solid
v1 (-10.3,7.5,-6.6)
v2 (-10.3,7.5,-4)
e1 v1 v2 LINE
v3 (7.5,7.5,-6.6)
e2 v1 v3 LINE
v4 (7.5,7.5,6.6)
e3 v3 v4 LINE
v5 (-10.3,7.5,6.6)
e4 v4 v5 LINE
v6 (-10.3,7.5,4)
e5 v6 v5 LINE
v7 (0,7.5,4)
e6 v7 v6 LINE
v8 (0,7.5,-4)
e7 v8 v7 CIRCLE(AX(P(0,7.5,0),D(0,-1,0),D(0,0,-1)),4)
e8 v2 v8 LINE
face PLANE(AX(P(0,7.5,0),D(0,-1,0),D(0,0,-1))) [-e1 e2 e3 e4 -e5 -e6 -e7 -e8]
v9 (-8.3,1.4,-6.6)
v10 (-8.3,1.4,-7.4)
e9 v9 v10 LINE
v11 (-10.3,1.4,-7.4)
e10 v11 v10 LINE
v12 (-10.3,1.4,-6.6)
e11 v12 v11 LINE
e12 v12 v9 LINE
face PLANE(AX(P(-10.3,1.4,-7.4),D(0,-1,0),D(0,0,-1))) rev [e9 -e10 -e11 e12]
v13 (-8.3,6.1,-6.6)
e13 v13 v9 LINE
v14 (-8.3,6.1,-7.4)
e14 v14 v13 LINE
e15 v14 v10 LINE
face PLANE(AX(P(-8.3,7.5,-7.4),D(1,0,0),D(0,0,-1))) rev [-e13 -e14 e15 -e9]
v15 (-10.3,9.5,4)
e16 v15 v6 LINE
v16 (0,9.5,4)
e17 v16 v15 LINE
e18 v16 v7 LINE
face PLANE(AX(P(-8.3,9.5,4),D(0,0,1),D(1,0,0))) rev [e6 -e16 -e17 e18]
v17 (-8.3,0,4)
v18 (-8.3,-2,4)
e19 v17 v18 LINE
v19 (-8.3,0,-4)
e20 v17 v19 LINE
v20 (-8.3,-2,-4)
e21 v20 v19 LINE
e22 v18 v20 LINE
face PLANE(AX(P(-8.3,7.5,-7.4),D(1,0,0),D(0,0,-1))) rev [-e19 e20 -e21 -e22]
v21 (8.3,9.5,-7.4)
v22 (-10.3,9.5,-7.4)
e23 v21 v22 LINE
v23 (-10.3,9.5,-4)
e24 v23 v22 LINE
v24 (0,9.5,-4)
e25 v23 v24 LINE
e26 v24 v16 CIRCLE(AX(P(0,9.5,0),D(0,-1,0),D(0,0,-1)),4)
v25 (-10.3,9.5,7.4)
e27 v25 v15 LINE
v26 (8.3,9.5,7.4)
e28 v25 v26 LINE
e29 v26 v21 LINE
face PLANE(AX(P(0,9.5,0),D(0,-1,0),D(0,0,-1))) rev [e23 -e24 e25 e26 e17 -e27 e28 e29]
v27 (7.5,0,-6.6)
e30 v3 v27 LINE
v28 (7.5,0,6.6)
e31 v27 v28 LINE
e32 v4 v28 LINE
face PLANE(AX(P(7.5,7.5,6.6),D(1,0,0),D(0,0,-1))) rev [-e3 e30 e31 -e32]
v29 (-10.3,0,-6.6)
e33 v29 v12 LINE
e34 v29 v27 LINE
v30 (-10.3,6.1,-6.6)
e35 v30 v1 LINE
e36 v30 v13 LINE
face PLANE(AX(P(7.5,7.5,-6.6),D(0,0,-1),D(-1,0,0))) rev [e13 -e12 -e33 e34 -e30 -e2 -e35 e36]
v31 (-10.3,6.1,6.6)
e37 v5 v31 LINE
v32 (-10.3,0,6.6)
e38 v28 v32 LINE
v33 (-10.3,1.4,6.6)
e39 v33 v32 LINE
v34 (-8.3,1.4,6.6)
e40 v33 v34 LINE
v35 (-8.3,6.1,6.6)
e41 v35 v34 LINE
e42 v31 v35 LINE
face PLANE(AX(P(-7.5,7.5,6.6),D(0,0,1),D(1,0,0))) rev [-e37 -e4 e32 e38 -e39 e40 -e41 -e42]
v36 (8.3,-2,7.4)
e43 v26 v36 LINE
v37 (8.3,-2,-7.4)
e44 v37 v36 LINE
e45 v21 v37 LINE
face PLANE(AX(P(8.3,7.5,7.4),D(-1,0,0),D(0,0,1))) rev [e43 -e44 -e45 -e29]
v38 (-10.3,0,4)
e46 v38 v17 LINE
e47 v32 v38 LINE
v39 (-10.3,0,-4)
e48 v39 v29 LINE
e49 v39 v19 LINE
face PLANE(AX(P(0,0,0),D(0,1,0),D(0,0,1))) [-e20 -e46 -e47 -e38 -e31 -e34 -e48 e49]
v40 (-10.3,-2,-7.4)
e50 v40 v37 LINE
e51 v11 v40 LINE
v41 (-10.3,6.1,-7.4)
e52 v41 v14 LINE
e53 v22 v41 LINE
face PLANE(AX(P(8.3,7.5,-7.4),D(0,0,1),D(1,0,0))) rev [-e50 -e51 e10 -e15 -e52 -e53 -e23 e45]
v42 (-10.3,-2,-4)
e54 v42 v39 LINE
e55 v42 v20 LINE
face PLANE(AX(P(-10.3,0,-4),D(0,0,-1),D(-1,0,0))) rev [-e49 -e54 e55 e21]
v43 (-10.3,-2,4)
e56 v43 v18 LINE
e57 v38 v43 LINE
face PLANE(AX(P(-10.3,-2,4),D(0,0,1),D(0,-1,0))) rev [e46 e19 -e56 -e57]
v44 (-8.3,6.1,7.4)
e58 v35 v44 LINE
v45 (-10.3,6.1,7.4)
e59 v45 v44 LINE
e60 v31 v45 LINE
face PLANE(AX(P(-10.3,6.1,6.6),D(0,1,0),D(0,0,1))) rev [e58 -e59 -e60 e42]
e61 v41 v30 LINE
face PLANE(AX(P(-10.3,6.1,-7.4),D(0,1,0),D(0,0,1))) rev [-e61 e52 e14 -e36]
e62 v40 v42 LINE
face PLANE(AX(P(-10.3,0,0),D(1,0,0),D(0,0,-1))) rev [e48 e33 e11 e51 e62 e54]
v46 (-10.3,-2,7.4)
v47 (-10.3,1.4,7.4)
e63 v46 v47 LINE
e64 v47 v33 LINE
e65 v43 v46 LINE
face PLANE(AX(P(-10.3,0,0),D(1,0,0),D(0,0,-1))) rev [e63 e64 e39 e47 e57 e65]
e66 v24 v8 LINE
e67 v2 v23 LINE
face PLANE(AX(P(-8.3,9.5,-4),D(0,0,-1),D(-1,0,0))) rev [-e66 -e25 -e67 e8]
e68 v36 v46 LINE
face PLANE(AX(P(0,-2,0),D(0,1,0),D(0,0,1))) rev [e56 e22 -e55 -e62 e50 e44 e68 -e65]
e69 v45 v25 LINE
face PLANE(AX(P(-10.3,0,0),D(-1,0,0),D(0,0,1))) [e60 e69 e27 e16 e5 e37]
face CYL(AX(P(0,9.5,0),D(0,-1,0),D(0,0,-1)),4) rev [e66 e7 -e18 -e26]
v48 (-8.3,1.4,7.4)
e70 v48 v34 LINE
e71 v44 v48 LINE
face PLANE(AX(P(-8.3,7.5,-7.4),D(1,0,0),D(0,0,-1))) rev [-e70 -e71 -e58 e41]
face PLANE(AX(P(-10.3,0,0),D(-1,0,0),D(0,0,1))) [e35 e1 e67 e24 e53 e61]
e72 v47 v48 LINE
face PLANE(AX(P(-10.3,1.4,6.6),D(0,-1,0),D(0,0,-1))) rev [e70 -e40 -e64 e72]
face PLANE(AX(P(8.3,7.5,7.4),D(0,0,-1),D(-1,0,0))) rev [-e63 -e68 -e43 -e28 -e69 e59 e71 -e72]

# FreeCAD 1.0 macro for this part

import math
import FreeCAD as App
import Part
import Sketcher
from FreeCAD import Vector
Q = App.Units.Quantity


def add_polygon(sketch, points):
    """Adds a closed chain of lines whose ends are joined by coincident constraints."""
    first, n = sketch.GeometryCount, len(points)
    for a, b in zip(points, points[1:] + points[:1]):
        sketch.addGeometry(Part.LineSegment(App.Vector(*a, 0), App.Vector(*b, 0)), False)
    for i in range(n):
        sketch.addConstraint(Sketcher.Constraint("Coincident", first + i, 2, first + (i + 1) % n, 1))

doc = App.newDocument("Part")
body = doc.addObject("PartDesign::Body", "Body")

# Sketch on XZ plane
sketch1 = body.newObject("Sketcher::SketchObject", "Sketch")
sketch1.AttachmentSupport = (doc.getObject("XZ_Plane"), [""])
sketch1.MapMode = "FlatFace"
add_polygon(sketch1, [(8.3, 7.4), (8.3, -7.4), (-8.3, -7.4), (-8.3, -6.6), (7.5, -6.6), (7.5, 6.6), (-8.3, 6.6), (-8.3, 7.4)])  # lines 0-7
sketch1.addConstraint([
    Sketcher.Constraint("Vertical", 0),
    Sketcher.Constraint("Horizontal", 1),
    Sketcher.Constraint("Vertical", 2),
    Sketcher.Constraint("Horizontal", 3),
    Sketcher.Constraint("Vertical", 4),
    Sketcher.Constraint("Horizontal", 5),
    Sketcher.Constraint("Vertical", 6),
    Sketcher.Constraint("Horizontal", 7),
    Sketcher.Constraint("Symmetric", 0, 2, 6, 2, -1, 1),
    Sketcher.Constraint("Symmetric", 2, 2, 5, 2, -1),
    Sketcher.Constraint("DistanceX", 1, 2, 1, 1, Q("16.6 mm")),
    Sketcher.Constraint("DistanceX", 3, 1, 3, 2, Q("15.8 mm")),
    Sketcher.Constraint("DistanceY", 0, 2, 0, 1, Q("14.8 mm")),
    Sketcher.Constraint("DistanceY", 2, 1, 2, 2, Q("0.8 mm")),
])
pad1 = body.newObject("PartDesign::Pad", "Pad")
pad1.Profile = sketch1
pad1.Length = 7.5
pad1.Reversed = True

# Sketch on XZ plane
sketch2 = body.newObject("Sketcher::SketchObject", "Sketch001")
sketch2.AttachmentSupport = (doc.getObject("XZ_Plane"), [""])
sketch2.MapMode = "FlatFace"
add_polygon(sketch2, [(-8, 7), (-8, -7), (8, -7), (8, 7)])  # lines 0-3
sketch2.addConstraint([
    Sketcher.Constraint("Vertical", 0),
    Sketcher.Constraint("Horizontal", 1),
    Sketcher.Constraint("Vertical", 2),
    Sketcher.Constraint("Horizontal", 3),
    Sketcher.Constraint("Symmetric", 0, 2, 2, 2, -1, 1),
    Sketcher.Constraint("DistanceX", 1, 1, 1, 2, Q("16.6 mm")),
    Sketcher.Constraint("DistanceY", 0, 2, 0, 1, Q("14.8 mm")),
])
pad2 = body.newObject("PartDesign::Pad", "Pad001")
pad2.Profile = sketch2
pad2.Length = 2

# Sketch on XZ plane
sketch3 = body.newObject("Sketcher::SketchObject", "Sketch002")
sketch3.AttachmentSupport = (doc.getObject("XZ_Plane"), [""])
sketch3.MapMode = "FlatFace"
sketch3.AttachmentOffset = App.Placement(Vector(0, 0, -7.5), App.Rotation())
sketch3.addGeometry([
    Part.LineSegment(Vector(-8.3, -4, 0), Vector(0, -4, 0)),  # 0
    Part.ArcOfCircle(Part.Circle(Vector(0, 0, 0), Vector(0, 0, 1), 4), math.radians(-90), math.radians(90)),  # 1
    Part.LineSegment(Vector(0, 4, 0), Vector(-8.3, 4, 0)),  # 2
    Part.LineSegment(Vector(-8.3, 4, 0), Vector(-8.3, 7.4, 0)),  # 3
    Part.LineSegment(Vector(-8.3, 7.4, 0), Vector(8.3, 7.4, 0)),  # 4
    Part.LineSegment(Vector(8.3, 7.4, 0), Vector(8.3, -7.4, 0)),  # 5
    Part.LineSegment(Vector(8.3, -7.4, 0), Vector(-8.3, -7.4, 0)),  # 6
    Part.LineSegment(Vector(-8.3, -7.4, 0), Vector(-8.3, -4, 0)),  # 7
], False)
sketch3.addConstraint([
    Sketcher.Constraint("Tangent", 0, 2, 1, 1),
    Sketcher.Constraint("Tangent", 1, 2, 2, 1),
    Sketcher.Constraint("Coincident", 2, 2, 3, 1),
    Sketcher.Constraint("Coincident", 3, 2, 4, 1),
    Sketcher.Constraint("Coincident", 4, 2, 5, 1),
    Sketcher.Constraint("Coincident", 5, 2, 6, 1),
    Sketcher.Constraint("Coincident", 6, 2, 7, 1),
    Sketcher.Constraint("Coincident", 7, 2, 0, 1),
    Sketcher.Constraint("Horizontal", 0),
    Sketcher.Constraint("Horizontal", 2),
    Sketcher.Constraint("Vertical", 3),
    Sketcher.Constraint("Horizontal", 4),
    Sketcher.Constraint("Vertical", 5),
    Sketcher.Constraint("Horizontal", 6),
    Sketcher.Constraint("Vertical", 7),
    Sketcher.Constraint("Coincident", 1, 3, -1, 1),
    Sketcher.Constraint("Symmetric", 3, 2, 5, 2, -1, 1),
    Sketcher.Constraint("Vertical", 3, 2, 6, 2),
    Sketcher.Constraint("Radius", 1, Q("4 mm")),
    Sketcher.Constraint("DistanceX", 0, 1, 0, 2, Q("8.3 mm")),
    Sketcher.Constraint("DistanceY", 3, 1, 3, 2, Q("3.4 mm")),
])
pad3 = body.newObject("PartDesign::Pad", "Pad002")
pad3.Profile = sketch3
pad3.Length = 2
pad3.Reversed = True

# Sketch on YZ plane
sketch4 = body.newObject("Sketcher::SketchObject", "Sketch003")
sketch4.AttachmentSupport = (doc.getObject("YZ_Plane"), [""])
sketch4.MapMode = "FlatFace"
sketch4.AttachmentOffset = App.Placement(Vector(0, 0, -8.3), App.Rotation())
add_polygon(sketch4, [(9.5, -4), (9.5, -7.4), (6.1, -7.4), (6.1, -6.6), (7.5, -6.6), (7.5, -4)])  # lines 0-5
add_polygon(sketch4, [(9.5, 4), (7.5, 4), (7.5, 6.6), (6.1, 6.6), (6.1, 7.4), (9.5, 7.4)])  # lines 6-11
add_polygon(sketch4, [(1.4, 7.4), (1.4, 6.6), (0, 6.6), (0, 4), (-2, 4), (-2, 7.4)])  # lines 12-17
add_polygon(sketch4, [(1.4, -6.6), (1.4, -7.4), (-2, -7.4), (-2, -4), (0, -4), (0, -6.6)])  # lines 18-23
sketch4.addConstraint([
    Sketcher.Constraint("Vertical", 0),
    Sketcher.Constraint("Horizontal", 1),
    Sketcher.Constraint("Vertical", 2),
    Sketcher.Constraint("Horizontal", 3),
    Sketcher.Constraint("Vertical", 4),
    Sketcher.Constraint("Horizontal", 5),
    Sketcher.Constraint("Horizontal", 6),
    Sketcher.Constraint("Vertical", 7),
    Sketcher.Constraint("Horizontal", 8),
    Sketcher.Constraint("Vertical", 9),
    Sketcher.Constraint("Horizontal", 10),
    Sketcher.Constraint("Vertical", 11),
    Sketcher.Constraint("Vertical", 12),
    Sketcher.Constraint("Horizontal", 13),
    Sketcher.Constraint("Vertical", 14),
    Sketcher.Constraint("Horizontal", 15),
    Sketcher.Constraint("Vertical", 16),
    Sketcher.Constraint("Horizontal", 17),
    Sketcher.Constraint("Vertical", 18),
    Sketcher.Constraint("Horizontal", 19),
    Sketcher.Constraint("Vertical", 20),
    Sketcher.Constraint("Horizontal", 21),
    Sketcher.Constraint("Vertical", 22),
    Sketcher.Constraint("Horizontal", 23),
    Sketcher.Constraint("Symmetric", 14, 2, 21, 2, -1, 1),
    Sketcher.Constraint("Symmetric", 4, 2, 6, 2, -1),
    Sketcher.Constraint("Symmetric", 2, 2, 8, 2, -1),
    Sketcher.Constraint("Symmetric", 0, 2, 10, 2, -1),
    Sketcher.Constraint("Symmetric", 17, 2, 18, 2, -1),
    Sketcher.Constraint("Symmetric", 13, 2, 22, 2, -1),
    Sketcher.Constraint("Horizontal", 8, 2, 12, 2),
    Sketcher.Constraint("Horizontal", 11, 2, 14, 2),
    Sketcher.Constraint("Horizontal", 10, 2, 16, 2),
    Sketcher.Constraint("Vertical", 16, 2, 19, 2),
    Sketcher.Constraint("Equal", 8, 13),
    Sketcher.Constraint("Equal", 6, 15),
    Sketcher.Constraint("Equal", 19, 0),
    Sketcher.Constraint("DistanceX", 5, 1, 5, 2, Q("2 mm")),
    Sketcher.Constraint("DistanceX", 1, 2, 1, 1, Q("3.4 mm")),
    Sketcher.Constraint("DistanceY", 2, 1, 2, 2, Q("0.8 mm")),
    Sketcher.Constraint("DistanceY", 4, 2, -1, 1, Q("4 mm")),
    Sketcher.Constraint("DistanceX", -1, 1, 0, 2, Q("9.5 mm")),
])
pad4 = body.newObject("PartDesign::Pad", "Pad003")
pad4.Profile = sketch4
pad4.Length = 2
pad4.Reversed = True

doc.recompute()
